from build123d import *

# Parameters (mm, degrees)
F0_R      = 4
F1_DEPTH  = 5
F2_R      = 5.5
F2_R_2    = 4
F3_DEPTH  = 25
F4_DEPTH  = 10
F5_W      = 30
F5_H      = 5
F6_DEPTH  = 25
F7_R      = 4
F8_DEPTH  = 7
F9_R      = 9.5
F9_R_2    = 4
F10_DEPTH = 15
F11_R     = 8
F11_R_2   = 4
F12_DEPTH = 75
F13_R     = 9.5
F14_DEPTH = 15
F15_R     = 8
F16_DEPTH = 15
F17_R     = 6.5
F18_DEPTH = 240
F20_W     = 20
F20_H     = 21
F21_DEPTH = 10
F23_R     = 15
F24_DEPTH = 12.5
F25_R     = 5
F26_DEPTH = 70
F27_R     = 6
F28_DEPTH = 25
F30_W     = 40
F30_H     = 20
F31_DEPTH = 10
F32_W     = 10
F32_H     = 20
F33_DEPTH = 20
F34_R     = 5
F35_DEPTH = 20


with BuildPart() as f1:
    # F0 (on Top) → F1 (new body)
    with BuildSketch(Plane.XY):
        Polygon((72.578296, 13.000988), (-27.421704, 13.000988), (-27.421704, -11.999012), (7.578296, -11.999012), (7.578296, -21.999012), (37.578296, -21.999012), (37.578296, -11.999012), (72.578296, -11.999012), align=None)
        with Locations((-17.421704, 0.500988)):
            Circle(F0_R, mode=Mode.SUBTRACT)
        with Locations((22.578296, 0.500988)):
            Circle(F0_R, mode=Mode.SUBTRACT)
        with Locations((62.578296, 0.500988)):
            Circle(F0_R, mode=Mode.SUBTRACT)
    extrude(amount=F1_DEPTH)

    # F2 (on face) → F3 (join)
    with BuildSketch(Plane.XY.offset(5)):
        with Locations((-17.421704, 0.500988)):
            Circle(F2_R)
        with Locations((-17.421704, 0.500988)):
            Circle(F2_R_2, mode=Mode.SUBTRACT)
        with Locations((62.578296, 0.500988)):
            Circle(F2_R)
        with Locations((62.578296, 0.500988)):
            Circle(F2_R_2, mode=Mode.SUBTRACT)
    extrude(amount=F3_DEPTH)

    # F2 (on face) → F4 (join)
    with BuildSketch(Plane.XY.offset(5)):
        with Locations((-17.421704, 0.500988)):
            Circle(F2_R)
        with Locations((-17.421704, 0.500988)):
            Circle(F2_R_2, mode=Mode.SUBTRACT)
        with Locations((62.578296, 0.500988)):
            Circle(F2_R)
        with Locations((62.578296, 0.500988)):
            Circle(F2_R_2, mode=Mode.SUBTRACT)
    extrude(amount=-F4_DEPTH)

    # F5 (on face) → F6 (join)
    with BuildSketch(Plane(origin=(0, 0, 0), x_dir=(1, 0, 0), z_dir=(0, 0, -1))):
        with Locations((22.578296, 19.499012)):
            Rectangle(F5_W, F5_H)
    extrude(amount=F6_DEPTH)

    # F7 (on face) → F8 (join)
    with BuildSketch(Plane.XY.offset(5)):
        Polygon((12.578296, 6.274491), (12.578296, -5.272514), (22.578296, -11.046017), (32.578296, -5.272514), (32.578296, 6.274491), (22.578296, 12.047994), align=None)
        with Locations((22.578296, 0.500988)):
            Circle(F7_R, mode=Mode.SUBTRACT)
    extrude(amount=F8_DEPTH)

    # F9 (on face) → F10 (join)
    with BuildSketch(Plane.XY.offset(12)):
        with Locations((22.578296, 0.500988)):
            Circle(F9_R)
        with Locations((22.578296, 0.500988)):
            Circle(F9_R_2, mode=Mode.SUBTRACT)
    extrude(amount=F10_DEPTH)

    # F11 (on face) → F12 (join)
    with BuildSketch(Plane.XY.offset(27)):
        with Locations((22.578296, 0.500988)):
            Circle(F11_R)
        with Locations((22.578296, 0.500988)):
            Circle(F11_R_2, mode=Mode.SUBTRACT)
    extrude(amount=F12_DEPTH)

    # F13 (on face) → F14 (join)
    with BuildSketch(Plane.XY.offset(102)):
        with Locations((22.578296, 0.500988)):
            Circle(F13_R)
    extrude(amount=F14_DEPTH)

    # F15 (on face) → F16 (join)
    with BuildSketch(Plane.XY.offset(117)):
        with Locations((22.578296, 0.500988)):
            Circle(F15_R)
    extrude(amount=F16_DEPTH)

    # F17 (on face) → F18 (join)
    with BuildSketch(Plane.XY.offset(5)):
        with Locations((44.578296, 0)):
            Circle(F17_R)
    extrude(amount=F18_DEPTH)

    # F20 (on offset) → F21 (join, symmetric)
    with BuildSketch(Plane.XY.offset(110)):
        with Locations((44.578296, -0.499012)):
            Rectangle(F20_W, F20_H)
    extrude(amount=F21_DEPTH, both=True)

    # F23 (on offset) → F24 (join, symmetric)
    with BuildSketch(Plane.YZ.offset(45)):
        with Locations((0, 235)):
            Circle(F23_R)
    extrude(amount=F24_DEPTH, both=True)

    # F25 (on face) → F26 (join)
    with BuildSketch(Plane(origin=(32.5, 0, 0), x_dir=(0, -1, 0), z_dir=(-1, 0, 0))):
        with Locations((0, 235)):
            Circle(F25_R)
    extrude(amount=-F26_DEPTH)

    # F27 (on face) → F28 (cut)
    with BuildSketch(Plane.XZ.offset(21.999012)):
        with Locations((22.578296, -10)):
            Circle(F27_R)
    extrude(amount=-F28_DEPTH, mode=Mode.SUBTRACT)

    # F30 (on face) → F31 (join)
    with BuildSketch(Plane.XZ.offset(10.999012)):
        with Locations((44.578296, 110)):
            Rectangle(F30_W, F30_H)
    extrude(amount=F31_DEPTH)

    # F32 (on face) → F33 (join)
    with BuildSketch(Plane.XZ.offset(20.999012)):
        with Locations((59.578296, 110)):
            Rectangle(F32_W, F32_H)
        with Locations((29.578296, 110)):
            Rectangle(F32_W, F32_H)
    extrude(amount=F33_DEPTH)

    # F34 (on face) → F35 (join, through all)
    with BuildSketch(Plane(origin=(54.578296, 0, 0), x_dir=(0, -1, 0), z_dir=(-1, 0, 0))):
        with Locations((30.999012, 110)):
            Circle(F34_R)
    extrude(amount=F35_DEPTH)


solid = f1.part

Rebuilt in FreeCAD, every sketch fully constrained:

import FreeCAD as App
import Part
import Sketcher
Q = App.Units.Quantity


def add_polygon(sketch, points):
    """Adds a closed chain of lines whose ends are joined by coincident constraints."""
    first, n = sketch.GeometryCount, len(points)
    for a, b in zip(points, points[1:] + points[:1]):
        sketch.addGeometry(Part.LineSegment(App.Vector(*a, 0), App.Vector(*b, 0)), False)
    for i in range(n):
        sketch.addConstraint(Sketcher.Constraint("Coincident", first + i, 2, first + (i + 1) % n, 1))

doc = App.newDocument("Part")
params = doc.addObject("Spreadsheet::Sheet", "Params")
for row, (alias, value) in enumerate([
    ("sketch1_diameter", "8 mm"),
    ("sketch1_width", "100 mm"),
    ("sketch1_width2", "35 mm"),
    ("sketch1_height", "25 mm"),
    ("sketch1_height2", "10 mm"),
    ("pad1_length", "5 mm"),
    ("sketch2_diameter", "11 mm"),
    ("sketch2_diameter2", "8 mm"),
    ("pad2_length", "25 mm"),
    ("sketch3_diameter", "11 mm"),
    ("sketch3_diameter2", "8 mm"),
    ("pad3_length", "10 mm"),
    ("sketch4_width", "30 mm"),
    ("sketch4_height", "5 mm"),
    ("pad4_length", "25 mm"),
    ("sketch5_diameter", "8 mm"),
    ("pad5_length", "7 mm"),
    ("sketch6_diameter", "19 mm"),
    ("sketch6_diameter2", "8 mm"),
    ("pad6_length", "15 mm"),
    ("sketch7_diameter", "16 mm"),
    ("sketch7_diameter2", "8 mm"),
    ("pad7_length", "75 mm"),
    ("sketch8_diameter", "19 mm"),
    ("pad8_length", "15 mm"),
    ("sketch9_diameter", "16 mm"),
    ("pad9_length", "15 mm"),
    ("sketch10_diameter", "13 mm"),
    ("pad10_length", "240 mm"),
    ("sketch11_width", "20 mm"),
    ("sketch11_height", "21 mm"),
    ("pad11_length", "20 mm"),
    ("sketch12_diameter", "30 mm"),
    ("pad12_length", "25 mm"),
    ("sketch13_diameter", "10 mm"),
    ("pad13_length", "70 mm"),
    ("sketch14_diameter", "12 mm"),
    ("pocket1_length", "25 mm"),
    ("sketch15_width", "40 mm"),
    ("sketch15_height", "20 mm"),
    ("pad14_length", "10 mm"),
    ("sketch16_width", "10 mm"),
    ("sketch16_height", "20 mm"),
    ("pad15_length", "20 mm"),
    ("sketch17_diameter", "10 mm"),
], start=1):
    params.set(f"A{row}", alias)
    params.set(f"B{row}", "=" + value)
    params.setAlias(f"B{row}", alias)

body = doc.addObject("PartDesign::Body", "Body")

sketch1 = body.newObject("Sketcher::SketchObject", "Sketch")
sketch1.AttachmentSupport = (doc.getObject("XY_Plane"), [""])
sketch1.MapMode = "FlatFace"
add_polygon(sketch1, [(72.6, 13), (-27.4, 13), (-27.4, -12), (7.6, -12), (7.6, -22), (37.6, -22), (37.6, -12), (72.6, -12)])
sketch1.addGeometry(Part.Circle(App.Vector(-17.4, 0.5, 0), App.Vector(0, 0, 1), 4), False)
sketch1.addGeometry(Part.Circle(App.Vector(22.6, 0.5, 0), App.Vector(0, 0, 1), 4), False)
sketch1.addGeometry(Part.Circle(App.Vector(62.6, 0.5, 0), App.Vector(0, 0, 1), 4), False)
sketch1.addConstraint([
    Sketcher.Constraint("Horizontal", 0),
    Sketcher.Constraint("Vertical", 1),
    Sketcher.Constraint("Horizontal", 2),
    Sketcher.Constraint("Vertical", 3),
    Sketcher.Constraint("Horizontal", 4),
    Sketcher.Constraint("Vertical", 5),
    Sketcher.Constraint("Horizontal", 6),
    Sketcher.Constraint("Vertical", 7),
    Sketcher.Constraint("Equal", 8, 9),
    Sketcher.Constraint("Equal", 9, 10),
    Sketcher.Constraint("Horizontal", 8, 3, 9, 3),
    Sketcher.Constraint("Horizontal", 9, 3, 10, 3),
    Sketcher.Constraint("Horizontal", 2, 2, 5, 2),
    Sketcher.Constraint("Equal", 2, 6),
    Sketcher.Constraint("Diameter", 8, 8.0),
    Sketcher.Constraint("DistanceX", 0, 2, 0, 1, 100.0),
    Sketcher.Constraint("DistanceX", 2, 1, 2, 2, 35.0),
    Sketcher.Constraint("DistanceY", 1, 2, 1, 1, 25.0),
    Sketcher.Constraint("DistanceY", 3, 2, 3, 1, 10.0),
    Sketcher.Constraint("DistanceX", 8, 3, 9, 3, 40.0),
    Sketcher.Constraint("DistanceX", 9, 3, 10, 3, 40.0),
    Sketcher.Constraint("DistanceX", 0, 2, 8, 3, 10.0),
    Sketcher.Constraint("DistanceY", 8, 3, 0, 2, 12.5),
    Sketcher.Constraint("DistanceX", 8, 3, -1, 1, 17.421704),
    Sketcher.Constraint("DistanceY", -1, 1, 8, 3, 0.500988),
])
sketch1.setExpression("Constraints[22]", "Params.sketch1_diameter")
sketch1.setExpression("Constraints[23]", "Params.sketch1_width")
sketch1.setExpression("Constraints[24]", "Params.sketch1_width2")
sketch1.setExpression("Constraints[25]", "Params.sketch1_height")
sketch1.setExpression("Constraints[26]", "Params.sketch1_height2")
pad1 = body.newObject("PartDesign::Pad", "Pad")
pad1.Profile = sketch1
pad1.setExpression("Length", "Params.pad1_length")

sketch2 = body.newObject("Sketcher::SketchObject", "Sketch001")
sketch2.AttachmentSupport = (doc.getObject("XY_Plane"), [""])
sketch2.MapMode = "FlatFace"
sketch2.AttachmentOffset = App.Placement(App.Vector(0, 0, 5), App.Rotation())
sketch2.addGeometry([
    Part.Circle(App.Vector(-17.4, 0.5, 0), App.Vector(0, 0, 1), 5.5),
    Part.Circle(App.Vector(-17.4, 0.5, 0), App.Vector(0, 0, 1), 4),
    Part.Circle(App.Vector(62.6, 0.5, 0), App.Vector(0, 0, 1), 5.5),
    Part.Circle(App.Vector(62.6, 0.5, 0), App.Vector(0, 0, 1), 4),
], False)
sketch2.addConstraint([
    Sketcher.Constraint("Coincident", 1, 3, 0, 3),
    Sketcher.Constraint("Coincident", 3, 3, 2, 3),
    Sketcher.Constraint("Equal", 0, 2),
    Sketcher.Constraint("Equal", 1, 3),
    Sketcher.Constraint("Horizontal", 1, 3, 2, 3),
    Sketcher.Constraint("Diameter", 0, 11.0),
    Sketcher.Constraint("Diameter", 1, 8.0),
    Sketcher.Constraint("DistanceX", 0, 3, 2, 3, 80.0),
    Sketcher.Constraint("DistanceX", 0, 3, -1, 1, 17.421704),
    Sketcher.Constraint("DistanceY", -1, 1, 0, 3, 0.500988),
])
sketch2.setExpression("Constraints[5]", "Params.sketch2_diameter")
sketch2.setExpression("Constraints[6]", "Params.sketch2_diameter2")
pad2 = body.newObject("PartDesign::Pad", "Pad001")
pad2.Profile = sketch2
pad2.setExpression("Length", "Params.pad2_length")

sketch3 = body.newObject("Sketcher::SketchObject", "Sketch002")
sketch3.AttachmentSupport = (doc.getObject("XY_Plane"), [""])
sketch3.MapMode = "FlatFace"
sketch3.AttachmentOffset = App.Placement(App.Vector(0, 0, 5), App.Rotation())
sketch3.addGeometry([
    Part.Circle(App.Vector(-17.4, 0.5, 0), App.Vector(0, 0, 1), 5.5),
    Part.Circle(App.Vector(-17.4, 0.5, 0), App.Vector(0, 0, 1), 4),
    Part.Circle(App.Vector(62.6, 0.5, 0), App.Vector(0, 0, 1), 5.5),
    Part.Circle(App.Vector(62.6, 0.5, 0), App.Vector(0, 0, 1), 4),
], False)
sketch3.addConstraint([
    Sketcher.Constraint("Coincident", 1, 3, 0, 3),
    Sketcher.Constraint("Coincident", 3, 3, 2, 3),
    Sketcher.Constraint("Equal", 0, 2),
    Sketcher.Constraint("Equal", 1, 3),
    Sketcher.Constraint("Horizontal", 1, 3, 2, 3),
    Sketcher.Constraint("Diameter", 0, 11.0),
    Sketcher.Constraint("Diameter", 1, 8.0),
    Sketcher.Constraint("DistanceX", 0, 3, 2, 3, 80.0),
    Sketcher.Constraint("DistanceX", 0, 3, -1, 1, 17.421704),
    Sketcher.Constraint("DistanceY", -1, 1, 0, 3, 0.500988),
])
sketch3.setExpression("Constraints[5]", "Params.sketch3_diameter")
sketch3.setExpression("Constraints[6]", "Params.sketch3_diameter2")
pad3 = body.newObject("PartDesign::Pad", "Pad002")
pad3.Profile = sketch3
pad3.setExpression("Length", "Params.pad3_length")
pad3.Reversed = True

sketch4 = body.newObject("Sketcher::SketchObject", "Sketch003")
sketch4.AttachmentSupport = (doc.getObject("XY_Plane"), [""])
sketch4.MapMode = "FlatFace"
add_polygon(sketch4, [(8, -22), (8, -17), (38, -17), (38, -22)])
sketch4.addConstraint([
    Sketcher.Constraint("Vertical", 0),
    Sketcher.Constraint("Horizontal", 1),
    Sketcher.Constraint("Vertical", 2),
    Sketcher.Constraint("Horizontal", 3),
    Sketcher.Constraint("DistanceX", 1, 1, 1, 2, 30.0),
    Sketcher.Constraint("DistanceY", 0, 1, 0, 2, 5.0),
    Sketcher.Constraint("DistanceX", -1, 1, 0, 2, 7.578296),
    Sketcher.Constraint("DistanceY", 0, 2, -1, 1, 16.999012),
])
sketch4.setExpression("Constraints[8]", "Params.sketch4_width")
sketch4.setExpression("Constraints[9]", "Params.sketch4_height")
pad4 = body.newObject("PartDesign::Pad", "Pad003")
pad4.Profile = sketch4
pad4.setExpression("Length", "Params.pad4_length")
pad4.Reversed = True

sketch5 = body.newObject("Sketcher::SketchObject", "Sketch004")
sketch5.AttachmentSupport = (doc.getObject("XY_Plane"), [""])
sketch5.MapMode = "FlatFace"
sketch5.AttachmentOffset = App.Placement(App.Vector(0, 0, 5), App.Rotation())
add_polygon(sketch5, [(12.6, 6.3), (12.6, -5.3), (22.6, -11), (32.6, -5.3), (32.6, 6.3), (22.6, 12)])
sketch5.addGeometry(Part.Circle(App.Vector(22.6, 0.5, 0), App.Vector(0, 0, 1), 4), False)
sketch5.addConstraint([
    Sketcher.Constraint("Vertical", 0),
    Sketcher.Constraint("Vertical", 3),
    Sketcher.Constraint("Parallel", 1, 4),
    Sketcher.Constraint("Parallel", 2, 5),
    Sketcher.Constraint("Horizontal", 0, 2, 2, 2),
    Sketcher.Constraint("Horizontal", 3, 2, 5, 2),
    Sketcher.Constraint("Vertical", 6, 3, 1, 2),
    Sketcher.Constraint("Vertical", 1, 2, 4, 2),
    Sketcher.Constraint("Diameter", 6, 8.0),
    Sketcher.Constraint("Angle", 1, Q("-30.000001 deg")),
    Sketcher.Constraint("DistanceX", 0, 2, 6, 3, 10.0),
    Sketcher.Constraint("DistanceY", 0, 2, 0, 1, 11.547005),
    Sketcher.Constraint("DistanceY", -1, 1, 3, 2, 6.274491),
    Sketcher.Constraint("DistanceX", -1, 1, 6, 3, 22.578296),
    Sketcher.Constraint("DistanceY", -1, 1, 6, 3, 0.500988),
])
sketch5.setExpression("Constraints[14]", "Params.sketch5_diameter")
pad5 = body.newObject("PartDesign::Pad", "Pad004")
pad5.Profile = sketch5
pad5.setExpression("Length", "Params.pad5_length")

sketch6 = body.newObject("Sketcher::SketchObject", "Sketch005")
sketch6.AttachmentSupport = (doc.getObject("XY_Plane"), [""])
sketch6.MapMode = "FlatFace"
sketch6.AttachmentOffset = App.Placement(App.Vector(0, 0, 12), App.Rotation())
sketch6.addGeometry([
    Part.Circle(App.Vector(22.6, 0.5, 0), App.Vector(0, 0, 1), 9.5),
    Part.Circle(App.Vector(22.6, 0.5, 0), App.Vector(0, 0, 1), 4),
], False)
sketch6.addConstraint([
    Sketcher.Constraint("Coincident", 1, 3, 0, 3),
    Sketcher.Constraint("Diameter", 0, 19.0),
    Sketcher.Constraint("Diameter", 1, 8.0),
    Sketcher.Constraint("DistanceX", -1, 1, 0, 3, 22.578296),
    Sketcher.Constraint("DistanceY", -1, 1, 0, 3, 0.500988),
])
sketch6.setExpression("Constraints[1]", "Params.sketch6_diameter")
sketch6.setExpression("Constraints[2]", "Params.sketch6_diameter2")
pad6 = body.newObject("PartDesign::Pad", "Pad005")
pad6.Profile = sketch6
pad6.setExpression("Length", "Params.pad6_length")

sketch7 = body.newObject("Sketcher::SketchObject", "Sketch006")
sketch7.AttachmentSupport = (doc.getObject("XY_Plane"), [""])
sketch7.MapMode = "FlatFace"
sketch7.AttachmentOffset = App.Placement(App.Vector(0, 0, 27), App.Rotation())
sketch7.addGeometry([
    Part.Circle(App.Vector(22.6, 0.5, 0), App.Vector(0, 0, 1), 8),
    Part.Circle(App.Vector(22.6, 0.5, 0), App.Vector(0, 0, 1), 4),
], False)
sketch7.addConstraint([
    Sketcher.Constraint("Coincident", 1, 3, 0, 3),
    Sketcher.Constraint("Diameter", 0, 16.0),
    Sketcher.Constraint("Diameter", 1, 8.0),
    Sketcher.Constraint("DistanceX", -1, 1, 0, 3, 22.578296),
    Sketcher.Constraint("DistanceY", -1, 1, 0, 3, 0.500988),
])
sketch7.setExpression("Constraints[1]", "Params.sketch7_diameter")
sketch7.setExpression("Constraints[2]", "Params.sketch7_diameter2")
pad7 = body.newObject("PartDesign::Pad", "Pad006")
pad7.Profile = sketch7
pad7.setExpression("Length", "Params.pad7_length")

sketch8 = body.newObject("Sketcher::SketchObject", "Sketch007")
sketch8.AttachmentSupport = (doc.getObject("XY_Plane"), [""])
sketch8.MapMode = "FlatFace"
sketch8.AttachmentOffset = App.Placement(App.Vector(0, 0, 102), App.Rotation())
sketch8.addGeometry(Part.Circle(App.Vector(23, 1, 0), App.Vector(0, 0, 1), 10), False)
sketch8.addConstraint([
    Sketcher.Constraint("Diameter", 0, 19.0),
    Sketcher.Constraint("DistanceX", -1, 1, 0, 3, 22.578296),
    Sketcher.Constraint("DistanceY", -1, 1, 0, 3, 0.500988),
])
sketch8.setExpression("Constraints[0]", "Params.sketch8_diameter")
pad8 = body.newObject("PartDesign::Pad", "Pad007")
pad8.Profile = sketch8
pad8.setExpression("Length", "Params.pad8_length")

sketch9 = body.newObject("Sketcher::SketchObject", "Sketch008")
sketch9.AttachmentSupport = (doc.getObject("XY_Plane"), [""])
sketch9.MapMode = "FlatFace"
sketch9.AttachmentOffset = App.Placement(App.Vector(0, 0, 117), App.Rotation())
sketch9.addGeometry(Part.Circle(App.Vector(23, 1, 0), App.Vector(0, 0, 1), 8), False)
sketch9.addConstraint([
    Sketcher.Constraint("Diameter", 0, 16.0),
    Sketcher.Constraint("DistanceX", -1, 1, 0, 3, 22.578296),
    Sketcher.Constraint("DistanceY", -1, 1, 0, 3, 0.500988),
])
sketch9.setExpression("Constraints[0]", "Params.sketch9_diameter")
pad9 = body.newObject("PartDesign::Pad", "Pad008")
pad9.Profile = sketch9
pad9.setExpression("Length", "Params.pad9_length")

sketch10 = body.newObject("Sketcher::SketchObject", "Sketch009")
sketch10.AttachmentSupport = (doc.getObject("XY_Plane"), [""])
sketch10.MapMode = "FlatFace"
sketch10.AttachmentOffset = App.Placement(App.Vector(0, 0, 5), App.Rotation())
sketch10.addGeometry(Part.Circle(App.Vector(45, 0, 0), App.Vector(0, 0, 1), 6), False)
sketch10.addConstraint([
    Sketcher.Constraint("PointOnObject", 0, 3, -1),
    Sketcher.Constraint("Diameter", 0, 13.0),
    Sketcher.Constraint("DistanceX", -1, 1, 0, 3, 44.578296),
])
sketch10.setExpression("Constraints[1]", "Params.sketch10_diameter")
pad10 = body.newObject("PartDesign::Pad", "Pad009")
pad10.Profile = sketch10
pad10.setExpression("Length", "Params.pad10_length")

sketch11 = body.newObject("Sketcher::SketchObject", "Sketch010")
sketch11.AttachmentSupport = (doc.getObject("XY_Plane"), [""])
sketch11.MapMode = "FlatFace"
sketch11.AttachmentOffset = App.Placement(App.Vector(0, 0, 110), App.Rotation())
add_polygon(sketch11, [(35, 10), (35, -11), (55, -11), (55, 10)])
sketch11.addConstraint([
    Sketcher.Constraint("Vertical", 0),
    Sketcher.Constraint("Horizontal", 1),
    Sketcher.Constraint("Vertical", 2),
    Sketcher.Constraint("Horizontal", 3),
    Sketcher.Constraint("DistanceX", 1, 1, 1, 2, 20.0),
    Sketcher.Constraint("DistanceY", 0, 2, 0, 1, 21.0),
    Sketcher.Constraint("DistanceX", -1, 1, 0, 2, 34.578296),
    Sketcher.Constraint("DistanceY", 0, 2, -1, 1, 10.999012),
])
sketch11.setExpression("Constraints[8]", "Params.sketch11_width")
sketch11.setExpression("Constraints[9]", "Params.sketch11_height")
pad11 = body.newObject("PartDesign::Pad", "Pad010")
pad11.Profile = sketch11
pad11.setExpression("Length", "Params.pad11_length")
pad11.Midplane = True

sketch12 = body.newObject("Sketcher::SketchObject", "Sketch011")
sketch12.AttachmentSupport = (doc.getObject("YZ_Plane"), [""])
sketch12.MapMode = "FlatFace"
sketch12.AttachmentOffset = App.Placement(App.Vector(0, 0, 45), App.Rotation())
sketch12.addGeometry(Part.Circle(App.Vector(0, 235, 0), App.Vector(0, 0, 1), 15), False)
sketch12.addConstraint([
    Sketcher.Constraint("PointOnObject", 0, 3, -2),
    Sketcher.Constraint("Diameter", 0, 30.0),
    Sketcher.Constraint("DistanceY", -1, 1, 0, 3, 235.0),
])
sketch12.setExpression("Constraints[1]", "Params.sketch12_diameter")
pad12 = body.newObject("PartDesign::Pad", "Pad011")
pad12.Profile = sketch12
pad12.setExpression("Length", "Params.pad12_length")
pad12.Midplane = True

sketch13 = body.newObject("Sketcher::SketchObject", "Sketch012")
sketch13.AttachmentSupport = (doc.getObject("YZ_Plane"), [""])
sketch13.MapMode = "FlatFace"
sketch13.AttachmentOffset = App.Placement(App.Vector(0, 0, 32.5), App.Rotation())
sketch13.addGeometry(Part.Circle(App.Vector(0, 235, 0), App.Vector(0, 0, 1), 5), False)
sketch13.addConstraint([
    Sketcher.Constraint("PointOnObject", 0, 3, -2),
    Sketcher.Constraint("Diameter", 0, 10.0),
    Sketcher.Constraint("DistanceY", -1, 1, 0, 3, 235.0),
])
sketch13.setExpression("Constraints[1]", "Params.sketch13_diameter")
pad13 = body.newObject("PartDesign::Pad", "Pad012")
pad13.Profile = sketch13
pad13.setExpression("Length", "Params.pad13_length")

sketch14 = body.newObject("Sketcher::SketchObject", "Sketch013")
sketch14.AttachmentSupport = (doc.getObject("XZ_Plane"), [""])
sketch14.MapMode = "FlatFace"
sketch14.AttachmentOffset = App.Placement(App.Vector(0, 0, 21.999012), App.Rotation())
sketch14.addGeometry(Part.Circle(App.Vector(23, -10, 0), App.Vector(0, 0, 1), 6), False)
sketch14.addConstraint([
    Sketcher.Constraint("Diameter", 0, 12.0),
    Sketcher.Constraint("DistanceY", 0, 3, -1, 1, 10.0),
    Sketcher.Constraint("DistanceX", -1, 1, 0, 3, 22.578296),
])
sketch14.setExpression("Constraints[0]", "Params.sketch14_diameter")
pocket1 = body.newObject("PartDesign::Pocket", "Pocket")
pocket1.Profile = sketch14
pocket1.setExpression("Length", "Params.pocket1_length")

sketch15 = body.newObject("Sketcher::SketchObject", "Sketch014")
sketch15.AttachmentSupport = (doc.getObject("XZ_Plane"), [""])
sketch15.MapMode = "FlatFace"
sketch15.AttachmentOffset = App.Placement(App.Vector(0, 0, 10.999012), App.Rotation())
add_polygon(sketch15, [(25, 120), (25, 100), (65, 100), (65, 120)])
sketch15.addConstraint([
    Sketcher.Constraint("Vertical", 0),
    Sketcher.Constraint("Horizontal", 1),
    Sketcher.Constraint("Vertical", 2),
    Sketcher.Constraint("Horizontal", 3),
    Sketcher.Constraint("DistanceX", 1, 1, 1, 2, 40.0),
    Sketcher.Constraint("DistanceY", 0, 2, 0, 1, 20.0),
    Sketcher.Constraint("DistanceY", -1, 1, 0, 2, 100.0),
    Sketcher.Constraint("DistanceX", -1, 1, 0, 2, 24.578296),
])
sketch15.setExpression("Constraints[8]", "Params.sketch15_width")
sketch15.setExpression("Constraints[9]", "Params.sketch15_height")
pad14 = body.newObject("PartDesign::Pad", "Pad013")
pad14.Profile = sketch15
pad14.setExpression("Length", "Params.pad14_length")

sketch16 = body.newObject("Sketcher::SketchObject", "Sketch015")
sketch16.AttachmentSupport = (doc.getObject("XZ_Plane"), [""])
sketch16.MapMode = "FlatFace"
sketch16.AttachmentOffset = App.Placement(App.Vector(0, 0, 20.999012), App.Rotation())
add_polygon(sketch16, [(55, 120), (55, 100), (65, 100), (65, 120)])
add_polygon(sketch16, [(25, 120), (25, 100), (35, 100), (35, 120)])
sketch16.addConstraint([
    Sketcher.Constraint("Vertical", 0),
    Sketcher.Constraint("Horizontal", 1),
    Sketcher.Constraint("Vertical", 2),
    Sketcher.Constraint("Horizontal", 3),
    Sketcher.Constraint("Vertical", 4),
    Sketcher.Constraint("Horizontal", 5),
    Sketcher.Constraint("Vertical", 6),
    Sketcher.Constraint("Horizontal", 7),
    Sketcher.Constraint("Horizontal", 1, 2, 4, 2),
    Sketcher.Constraint("Horizontal", 3, 2, 6, 2),
    Sketcher.Constraint("Equal", 3, 5),
    Sketcher.Constraint("DistanceX", 1, 1, 1, 2, 10.0),
    Sketcher.Constraint("DistanceY", 0, 2, 0, 1, 20.0),
    Sketcher.Constraint("DistanceY", -1, 1, 0, 2, 100.0),
    Sketcher.Constraint("DistanceX", 4, 2, 0, 2, 30.0),
    Sketcher.Constraint("DistanceX", -1, 1, 0, 2, 54.578296),
])
sketch16.setExpression("Constraints[19]", "Params.sketch16_width")
sketch16.setExpression("Constraints[20]", "Params.sketch16_height")
pad15 = body.newObject("PartDesign::Pad", "Pad014")
pad15.Profile = sketch16
pad15.setExpression("Length", "Params.pad15_length")

sketch17 = body.newObject("Sketcher::SketchObject", "Sketch016")
sketch17.AttachmentSupport = (doc.getObject("YZ_Plane"), [""])
sketch17.MapMode = "FlatFace"
sketch17.AttachmentOffset = App.Placement(App.Vector(0, 0, 54.578296), App.Rotation())
sketch17.addGeometry(Part.Circle(App.Vector(-31, 110, 0), App.Vector(0, 0, 1), 5), False)
sketch17.addConstraint([
    Sketcher.Constraint("Diameter", 0, 10.0),
    Sketcher.Constraint("DistanceY", -1, 1, 0, 3, 110.0),
    Sketcher.Constraint("DistanceX", 0, 3, -1, 1, 30.999012),
])
sketch17.setExpression("Constraints[0]", "Params.sketch17_diameter")
pad16 = body.newObject("PartDesign::Pad", "Pad015")
pad16.Profile = sketch17
pad16.Type = "UpToLast"
pad16.Reversed = True

doc.recompute()
